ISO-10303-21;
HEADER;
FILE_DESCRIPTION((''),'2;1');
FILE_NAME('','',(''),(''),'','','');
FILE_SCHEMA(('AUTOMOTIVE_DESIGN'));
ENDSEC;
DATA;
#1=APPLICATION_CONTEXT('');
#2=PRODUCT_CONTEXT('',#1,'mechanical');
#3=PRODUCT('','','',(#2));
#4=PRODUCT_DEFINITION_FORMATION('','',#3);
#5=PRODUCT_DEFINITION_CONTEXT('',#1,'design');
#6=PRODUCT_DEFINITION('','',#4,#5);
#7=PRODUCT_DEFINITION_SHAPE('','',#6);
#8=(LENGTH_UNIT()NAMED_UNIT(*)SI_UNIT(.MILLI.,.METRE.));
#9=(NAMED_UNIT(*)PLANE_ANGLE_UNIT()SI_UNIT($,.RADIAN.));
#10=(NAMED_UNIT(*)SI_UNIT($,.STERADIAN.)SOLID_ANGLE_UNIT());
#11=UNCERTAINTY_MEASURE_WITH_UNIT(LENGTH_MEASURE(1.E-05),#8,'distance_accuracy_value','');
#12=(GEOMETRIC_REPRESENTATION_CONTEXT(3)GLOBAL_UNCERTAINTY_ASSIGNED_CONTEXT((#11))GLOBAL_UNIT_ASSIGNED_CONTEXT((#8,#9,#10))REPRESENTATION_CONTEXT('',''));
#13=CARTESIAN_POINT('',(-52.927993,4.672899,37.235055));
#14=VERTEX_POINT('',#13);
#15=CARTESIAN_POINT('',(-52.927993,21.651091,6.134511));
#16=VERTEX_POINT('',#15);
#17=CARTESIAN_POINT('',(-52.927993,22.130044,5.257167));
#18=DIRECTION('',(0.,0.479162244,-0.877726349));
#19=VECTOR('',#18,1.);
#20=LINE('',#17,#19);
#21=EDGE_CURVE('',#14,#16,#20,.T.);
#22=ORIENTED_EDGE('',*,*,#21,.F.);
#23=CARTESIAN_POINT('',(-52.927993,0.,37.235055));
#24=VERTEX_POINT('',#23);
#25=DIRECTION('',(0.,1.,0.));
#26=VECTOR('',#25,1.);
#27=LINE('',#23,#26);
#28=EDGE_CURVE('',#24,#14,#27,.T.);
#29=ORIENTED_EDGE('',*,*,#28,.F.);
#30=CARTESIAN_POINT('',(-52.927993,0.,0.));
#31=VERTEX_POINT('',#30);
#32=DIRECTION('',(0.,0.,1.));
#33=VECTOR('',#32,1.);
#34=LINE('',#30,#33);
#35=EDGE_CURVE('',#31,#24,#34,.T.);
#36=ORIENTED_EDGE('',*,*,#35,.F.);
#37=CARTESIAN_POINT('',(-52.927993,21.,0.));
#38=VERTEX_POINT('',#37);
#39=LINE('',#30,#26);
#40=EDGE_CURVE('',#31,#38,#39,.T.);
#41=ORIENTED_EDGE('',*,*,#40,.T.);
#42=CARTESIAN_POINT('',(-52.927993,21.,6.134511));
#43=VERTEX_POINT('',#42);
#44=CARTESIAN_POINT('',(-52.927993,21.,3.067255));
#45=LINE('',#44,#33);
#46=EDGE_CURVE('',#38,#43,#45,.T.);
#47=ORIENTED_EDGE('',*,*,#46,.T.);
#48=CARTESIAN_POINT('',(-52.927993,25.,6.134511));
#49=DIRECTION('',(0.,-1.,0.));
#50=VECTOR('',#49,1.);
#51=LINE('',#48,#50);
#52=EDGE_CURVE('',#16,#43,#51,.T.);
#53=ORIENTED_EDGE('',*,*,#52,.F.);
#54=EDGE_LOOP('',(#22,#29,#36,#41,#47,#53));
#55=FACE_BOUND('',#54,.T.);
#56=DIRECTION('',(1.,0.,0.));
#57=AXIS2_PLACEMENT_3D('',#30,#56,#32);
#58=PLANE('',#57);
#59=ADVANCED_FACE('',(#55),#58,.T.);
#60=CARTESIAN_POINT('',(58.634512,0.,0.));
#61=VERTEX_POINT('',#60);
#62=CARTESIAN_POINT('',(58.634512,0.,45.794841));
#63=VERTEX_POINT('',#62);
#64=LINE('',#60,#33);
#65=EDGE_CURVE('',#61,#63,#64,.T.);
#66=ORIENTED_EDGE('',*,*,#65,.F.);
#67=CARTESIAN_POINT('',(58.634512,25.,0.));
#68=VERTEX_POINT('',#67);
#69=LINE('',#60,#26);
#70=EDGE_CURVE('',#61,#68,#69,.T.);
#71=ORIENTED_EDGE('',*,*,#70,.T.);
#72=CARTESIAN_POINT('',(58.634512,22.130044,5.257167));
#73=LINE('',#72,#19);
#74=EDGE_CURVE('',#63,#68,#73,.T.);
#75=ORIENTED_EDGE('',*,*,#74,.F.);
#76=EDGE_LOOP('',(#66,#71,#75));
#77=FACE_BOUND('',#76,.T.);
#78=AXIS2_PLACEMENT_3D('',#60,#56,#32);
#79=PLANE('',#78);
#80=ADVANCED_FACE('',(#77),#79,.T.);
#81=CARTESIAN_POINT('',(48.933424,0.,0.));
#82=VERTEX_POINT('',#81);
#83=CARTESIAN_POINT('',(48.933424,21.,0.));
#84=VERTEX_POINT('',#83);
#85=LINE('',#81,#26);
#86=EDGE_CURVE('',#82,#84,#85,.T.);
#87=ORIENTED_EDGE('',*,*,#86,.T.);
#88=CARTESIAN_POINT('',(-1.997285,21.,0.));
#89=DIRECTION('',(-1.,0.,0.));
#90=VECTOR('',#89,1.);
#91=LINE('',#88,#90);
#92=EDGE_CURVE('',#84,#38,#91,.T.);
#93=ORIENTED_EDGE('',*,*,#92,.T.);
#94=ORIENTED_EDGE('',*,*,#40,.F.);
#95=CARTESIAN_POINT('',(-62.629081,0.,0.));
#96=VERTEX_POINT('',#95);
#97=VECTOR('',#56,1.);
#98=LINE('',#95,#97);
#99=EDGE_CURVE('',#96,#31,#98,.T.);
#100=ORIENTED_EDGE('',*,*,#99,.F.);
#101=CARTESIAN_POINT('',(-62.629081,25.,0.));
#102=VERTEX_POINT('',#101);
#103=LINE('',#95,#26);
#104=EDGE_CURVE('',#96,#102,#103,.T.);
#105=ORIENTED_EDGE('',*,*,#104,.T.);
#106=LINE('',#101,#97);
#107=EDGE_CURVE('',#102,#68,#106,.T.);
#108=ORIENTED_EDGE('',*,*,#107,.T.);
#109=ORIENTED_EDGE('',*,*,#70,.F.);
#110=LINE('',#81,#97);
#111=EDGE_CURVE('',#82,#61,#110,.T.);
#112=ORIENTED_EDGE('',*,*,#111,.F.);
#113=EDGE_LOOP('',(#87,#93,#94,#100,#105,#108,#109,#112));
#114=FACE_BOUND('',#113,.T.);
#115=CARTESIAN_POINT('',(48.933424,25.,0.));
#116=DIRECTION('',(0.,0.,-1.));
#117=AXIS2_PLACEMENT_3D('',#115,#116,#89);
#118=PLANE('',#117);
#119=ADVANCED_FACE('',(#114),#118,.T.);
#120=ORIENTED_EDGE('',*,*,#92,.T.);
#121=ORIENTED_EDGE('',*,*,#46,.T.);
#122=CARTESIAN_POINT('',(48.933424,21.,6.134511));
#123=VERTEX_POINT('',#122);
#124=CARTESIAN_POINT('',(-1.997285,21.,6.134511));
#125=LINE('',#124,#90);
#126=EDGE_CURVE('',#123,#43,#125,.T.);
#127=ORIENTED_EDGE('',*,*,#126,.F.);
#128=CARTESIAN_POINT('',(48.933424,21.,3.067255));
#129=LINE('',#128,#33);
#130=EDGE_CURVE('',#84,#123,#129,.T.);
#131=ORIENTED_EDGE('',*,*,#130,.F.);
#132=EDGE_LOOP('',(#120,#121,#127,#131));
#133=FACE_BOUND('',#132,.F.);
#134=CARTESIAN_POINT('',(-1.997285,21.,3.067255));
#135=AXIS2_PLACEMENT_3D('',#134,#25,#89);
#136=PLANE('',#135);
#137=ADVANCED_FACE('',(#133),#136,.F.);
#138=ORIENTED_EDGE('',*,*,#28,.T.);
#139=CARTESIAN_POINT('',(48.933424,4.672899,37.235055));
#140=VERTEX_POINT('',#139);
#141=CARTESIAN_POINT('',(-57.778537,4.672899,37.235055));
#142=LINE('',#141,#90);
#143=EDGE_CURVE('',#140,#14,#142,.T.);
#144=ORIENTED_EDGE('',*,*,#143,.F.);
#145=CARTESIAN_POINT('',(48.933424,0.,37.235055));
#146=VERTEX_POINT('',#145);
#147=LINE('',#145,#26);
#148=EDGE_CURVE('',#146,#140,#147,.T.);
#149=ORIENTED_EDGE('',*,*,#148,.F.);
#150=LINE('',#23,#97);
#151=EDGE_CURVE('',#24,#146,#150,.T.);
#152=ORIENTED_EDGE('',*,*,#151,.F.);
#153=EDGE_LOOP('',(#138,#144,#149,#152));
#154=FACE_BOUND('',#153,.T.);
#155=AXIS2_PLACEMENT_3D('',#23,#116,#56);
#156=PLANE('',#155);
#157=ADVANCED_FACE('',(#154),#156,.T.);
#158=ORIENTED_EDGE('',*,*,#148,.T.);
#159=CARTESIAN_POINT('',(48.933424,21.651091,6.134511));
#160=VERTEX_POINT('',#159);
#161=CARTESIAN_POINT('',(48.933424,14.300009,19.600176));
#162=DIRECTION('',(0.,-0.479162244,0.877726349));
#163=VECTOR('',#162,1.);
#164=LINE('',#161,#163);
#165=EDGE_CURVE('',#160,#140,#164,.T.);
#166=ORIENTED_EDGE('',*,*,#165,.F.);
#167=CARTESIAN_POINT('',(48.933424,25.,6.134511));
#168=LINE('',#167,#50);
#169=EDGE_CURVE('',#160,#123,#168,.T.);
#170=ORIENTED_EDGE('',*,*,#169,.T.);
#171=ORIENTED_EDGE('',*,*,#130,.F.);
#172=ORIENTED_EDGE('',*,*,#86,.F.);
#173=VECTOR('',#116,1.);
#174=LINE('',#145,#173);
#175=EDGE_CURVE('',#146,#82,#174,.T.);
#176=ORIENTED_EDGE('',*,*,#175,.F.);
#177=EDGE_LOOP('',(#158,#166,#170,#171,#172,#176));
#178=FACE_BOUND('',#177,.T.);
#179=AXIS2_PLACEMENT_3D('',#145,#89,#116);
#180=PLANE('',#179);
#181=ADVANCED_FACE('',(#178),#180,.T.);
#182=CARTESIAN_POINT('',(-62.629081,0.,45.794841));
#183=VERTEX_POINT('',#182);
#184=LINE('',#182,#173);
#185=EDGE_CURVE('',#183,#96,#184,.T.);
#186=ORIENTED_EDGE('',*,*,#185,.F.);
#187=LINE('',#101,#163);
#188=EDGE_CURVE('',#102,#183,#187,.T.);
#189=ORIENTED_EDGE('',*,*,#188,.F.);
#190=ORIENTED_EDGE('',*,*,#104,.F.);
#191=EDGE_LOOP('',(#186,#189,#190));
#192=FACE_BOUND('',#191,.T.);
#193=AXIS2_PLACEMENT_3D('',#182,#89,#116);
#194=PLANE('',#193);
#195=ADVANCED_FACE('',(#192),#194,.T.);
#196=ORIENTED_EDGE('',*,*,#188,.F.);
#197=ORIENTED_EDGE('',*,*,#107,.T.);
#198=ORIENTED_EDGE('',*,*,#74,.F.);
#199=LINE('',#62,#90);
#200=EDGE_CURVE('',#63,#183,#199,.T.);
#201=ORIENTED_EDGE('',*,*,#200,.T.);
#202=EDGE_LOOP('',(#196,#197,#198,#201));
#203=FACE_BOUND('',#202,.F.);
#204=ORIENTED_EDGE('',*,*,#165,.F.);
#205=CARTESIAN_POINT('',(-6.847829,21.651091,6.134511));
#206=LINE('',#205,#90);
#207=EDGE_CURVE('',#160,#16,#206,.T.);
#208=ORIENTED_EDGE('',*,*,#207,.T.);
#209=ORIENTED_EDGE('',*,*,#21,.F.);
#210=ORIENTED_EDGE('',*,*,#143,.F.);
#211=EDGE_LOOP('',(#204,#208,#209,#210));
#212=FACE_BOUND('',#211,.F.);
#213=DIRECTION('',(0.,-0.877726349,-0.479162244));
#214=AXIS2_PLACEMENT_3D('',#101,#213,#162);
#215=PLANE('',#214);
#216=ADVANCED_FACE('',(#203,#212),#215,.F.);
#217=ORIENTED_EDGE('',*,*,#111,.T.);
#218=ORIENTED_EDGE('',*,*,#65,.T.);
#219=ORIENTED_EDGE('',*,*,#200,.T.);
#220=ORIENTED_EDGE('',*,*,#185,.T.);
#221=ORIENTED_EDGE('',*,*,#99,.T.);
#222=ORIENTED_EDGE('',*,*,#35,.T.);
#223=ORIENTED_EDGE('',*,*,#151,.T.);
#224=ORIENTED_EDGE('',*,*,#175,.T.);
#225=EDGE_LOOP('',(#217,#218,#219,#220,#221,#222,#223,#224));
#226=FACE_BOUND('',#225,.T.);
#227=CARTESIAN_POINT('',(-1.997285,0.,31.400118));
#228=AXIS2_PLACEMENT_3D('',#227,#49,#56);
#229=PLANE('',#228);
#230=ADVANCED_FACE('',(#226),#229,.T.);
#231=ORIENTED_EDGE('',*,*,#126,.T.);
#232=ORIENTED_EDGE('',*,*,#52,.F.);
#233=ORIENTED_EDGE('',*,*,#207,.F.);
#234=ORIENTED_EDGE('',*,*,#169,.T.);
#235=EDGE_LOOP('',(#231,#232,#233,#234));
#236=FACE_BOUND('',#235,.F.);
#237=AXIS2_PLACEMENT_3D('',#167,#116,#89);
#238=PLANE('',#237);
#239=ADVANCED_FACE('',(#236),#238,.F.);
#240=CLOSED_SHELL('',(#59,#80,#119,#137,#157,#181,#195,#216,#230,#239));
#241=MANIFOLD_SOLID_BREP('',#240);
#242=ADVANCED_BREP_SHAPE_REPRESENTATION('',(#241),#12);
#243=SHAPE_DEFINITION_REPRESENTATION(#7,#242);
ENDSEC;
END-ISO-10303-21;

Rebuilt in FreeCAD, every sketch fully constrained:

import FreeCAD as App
import Part
import Sketcher
from FreeCAD import Vector
Q = App.Units.Quantity


def add_polygon(sketch, points):
    """Adds a closed chain of lines whose ends are joined by coincident constraints."""
    first, n = sketch.GeometryCount, len(points)
    for a, b in zip(points, points[1:] + points[:1]):
        sketch.addGeometry(Part.LineSegment(App.Vector(*a, 0), App.Vector(*b, 0)), False)
    for i in range(n):
        sketch.addConstraint(Sketcher.Constraint("Coincident", first + i, 2, first + (i + 1) % n, 1))

doc = App.newDocument("Part")
body = doc.addObject("PartDesign::Body", "Body")

sketch1 = body.newObject("Sketcher::SketchObject", "Sketch")
sketch1.AttachmentSupport = (doc.getObject("XZ_Plane"), [""])
sketch1.MapMode = "FlatFace"
add_polygon(sketch1, [(-63, 46), (-63, 0), (-53, 0), (-53, 37), (49, 37), (49, 0), (59, 0), (59, 46)])
sketch1.addConstraint([
    Sketcher.Constraint("Vertical", 0),
    Sketcher.Constraint("Horizontal", 1),
    Sketcher.Constraint("Vertical", 2),
    Sketcher.Constraint("Horizontal", 3),
    Sketcher.Constraint("Vertical", 4),
    Sketcher.Constraint("Horizontal", 5),
    Sketcher.Constraint("Vertical", 6),
    Sketcher.Constraint("Horizontal", 7),
    Sketcher.Constraint("PointOnObject", 0, 2, -1),
    Sketcher.Constraint("PointOnObject", 4, 2, -1),
    Sketcher.Constraint("Equal", 1, 5),
    Sketcher.Constraint("DistanceX", 1, 1, 1, 2, Q("9.701088 mm")),
    Sketcher.Constraint("DistanceY", 0, 2, 0, 1, Q("45.794841 mm")),
    Sketcher.Constraint("DistanceX", 3, 1, 3, 2, Q("101.861417 mm")),
    Sketcher.Constraint("DistanceY", 2, 1, 2, 2, Q("37.235055 mm")),
    Sketcher.Constraint("DistanceX", 0, 2, -1, 1, Q("62.629081 mm")),
])
pad1 = body.newObject("PartDesign::Pad", "Pad")
pad1.Profile = sketch1
pad1.Length = 25
pad1.Reversed = True

sketch2 = body.newObject("Sketcher::SketchObject", "Sketch001")
sketch2.AttachmentSupport = (doc.getObject("XZ_Plane"), [""])
sketch2.MapMode = "FlatFace"
sketch2.AttachmentOffset = App.Placement(Vector(0, 0, -25), App.Rotation())
add_polygon(sketch2, [(49, 6), (49, 0), (-53, 0), (-53, 6)])
sketch2.addConstraint([
    Sketcher.Constraint("Vertical", 0),
    Sketcher.Constraint("Horizontal", 1),
    Sketcher.Constraint("Vertical", 2),
    Sketcher.Constraint("Horizontal", 3),
    Sketcher.Constraint("PointOnObject", 0, 2, -1),
    Sketcher.Constraint("DistanceY", 0, 2, 0, 1, Q("6.134511 mm")),
    Sketcher.Constraint("DistanceX", 1, 2, 1, 1, Q("101.861417 mm")),
    Sketcher.Constraint("DistanceX", -1, 1, 0, 2, Q("48.933424 mm")),
])
pad2 = body.newObject("PartDesign::Pad", "Pad001")
pad2.Profile = sketch2
pad2.Length = 4

sketch3 = body.newObject("Sketcher::SketchObject", "Sketch002")
sketch3.AttachmentSupport = (doc.getObject("YZ_Plane"), [""])
sketch3.MapMode = "FlatFace"
sketch3.AttachmentOffset = App.Placement(Vector(0, 0, -62.629081), App.Rotation())
add_polygon(sketch3, [(25, 0), (0, 46), (25, 46)])
sketch3.addConstraint([
    Sketcher.Constraint("Horizontal", 1),
    Sketcher.Constraint("Vertical", 2),
    Sketcher.Constraint("PointOnObject", 0, 2, -2),
    Sketcher.Constraint("PointOnObject", 2, 2, -1),
    Sketcher.Constraint("DistanceX", 1, 1, 1, 2, Q("25 mm")),
    Sketcher.Constraint("DistanceY", 2, 2, 2, 1, Q("45.794841 mm")),
])
pocket1 = body.newObject("PartDesign::Pocket", "Pocket")
pocket1.Profile = sketch3
pocket1.Length = 500
pocket1.Reversed = True

doc.recompute()
